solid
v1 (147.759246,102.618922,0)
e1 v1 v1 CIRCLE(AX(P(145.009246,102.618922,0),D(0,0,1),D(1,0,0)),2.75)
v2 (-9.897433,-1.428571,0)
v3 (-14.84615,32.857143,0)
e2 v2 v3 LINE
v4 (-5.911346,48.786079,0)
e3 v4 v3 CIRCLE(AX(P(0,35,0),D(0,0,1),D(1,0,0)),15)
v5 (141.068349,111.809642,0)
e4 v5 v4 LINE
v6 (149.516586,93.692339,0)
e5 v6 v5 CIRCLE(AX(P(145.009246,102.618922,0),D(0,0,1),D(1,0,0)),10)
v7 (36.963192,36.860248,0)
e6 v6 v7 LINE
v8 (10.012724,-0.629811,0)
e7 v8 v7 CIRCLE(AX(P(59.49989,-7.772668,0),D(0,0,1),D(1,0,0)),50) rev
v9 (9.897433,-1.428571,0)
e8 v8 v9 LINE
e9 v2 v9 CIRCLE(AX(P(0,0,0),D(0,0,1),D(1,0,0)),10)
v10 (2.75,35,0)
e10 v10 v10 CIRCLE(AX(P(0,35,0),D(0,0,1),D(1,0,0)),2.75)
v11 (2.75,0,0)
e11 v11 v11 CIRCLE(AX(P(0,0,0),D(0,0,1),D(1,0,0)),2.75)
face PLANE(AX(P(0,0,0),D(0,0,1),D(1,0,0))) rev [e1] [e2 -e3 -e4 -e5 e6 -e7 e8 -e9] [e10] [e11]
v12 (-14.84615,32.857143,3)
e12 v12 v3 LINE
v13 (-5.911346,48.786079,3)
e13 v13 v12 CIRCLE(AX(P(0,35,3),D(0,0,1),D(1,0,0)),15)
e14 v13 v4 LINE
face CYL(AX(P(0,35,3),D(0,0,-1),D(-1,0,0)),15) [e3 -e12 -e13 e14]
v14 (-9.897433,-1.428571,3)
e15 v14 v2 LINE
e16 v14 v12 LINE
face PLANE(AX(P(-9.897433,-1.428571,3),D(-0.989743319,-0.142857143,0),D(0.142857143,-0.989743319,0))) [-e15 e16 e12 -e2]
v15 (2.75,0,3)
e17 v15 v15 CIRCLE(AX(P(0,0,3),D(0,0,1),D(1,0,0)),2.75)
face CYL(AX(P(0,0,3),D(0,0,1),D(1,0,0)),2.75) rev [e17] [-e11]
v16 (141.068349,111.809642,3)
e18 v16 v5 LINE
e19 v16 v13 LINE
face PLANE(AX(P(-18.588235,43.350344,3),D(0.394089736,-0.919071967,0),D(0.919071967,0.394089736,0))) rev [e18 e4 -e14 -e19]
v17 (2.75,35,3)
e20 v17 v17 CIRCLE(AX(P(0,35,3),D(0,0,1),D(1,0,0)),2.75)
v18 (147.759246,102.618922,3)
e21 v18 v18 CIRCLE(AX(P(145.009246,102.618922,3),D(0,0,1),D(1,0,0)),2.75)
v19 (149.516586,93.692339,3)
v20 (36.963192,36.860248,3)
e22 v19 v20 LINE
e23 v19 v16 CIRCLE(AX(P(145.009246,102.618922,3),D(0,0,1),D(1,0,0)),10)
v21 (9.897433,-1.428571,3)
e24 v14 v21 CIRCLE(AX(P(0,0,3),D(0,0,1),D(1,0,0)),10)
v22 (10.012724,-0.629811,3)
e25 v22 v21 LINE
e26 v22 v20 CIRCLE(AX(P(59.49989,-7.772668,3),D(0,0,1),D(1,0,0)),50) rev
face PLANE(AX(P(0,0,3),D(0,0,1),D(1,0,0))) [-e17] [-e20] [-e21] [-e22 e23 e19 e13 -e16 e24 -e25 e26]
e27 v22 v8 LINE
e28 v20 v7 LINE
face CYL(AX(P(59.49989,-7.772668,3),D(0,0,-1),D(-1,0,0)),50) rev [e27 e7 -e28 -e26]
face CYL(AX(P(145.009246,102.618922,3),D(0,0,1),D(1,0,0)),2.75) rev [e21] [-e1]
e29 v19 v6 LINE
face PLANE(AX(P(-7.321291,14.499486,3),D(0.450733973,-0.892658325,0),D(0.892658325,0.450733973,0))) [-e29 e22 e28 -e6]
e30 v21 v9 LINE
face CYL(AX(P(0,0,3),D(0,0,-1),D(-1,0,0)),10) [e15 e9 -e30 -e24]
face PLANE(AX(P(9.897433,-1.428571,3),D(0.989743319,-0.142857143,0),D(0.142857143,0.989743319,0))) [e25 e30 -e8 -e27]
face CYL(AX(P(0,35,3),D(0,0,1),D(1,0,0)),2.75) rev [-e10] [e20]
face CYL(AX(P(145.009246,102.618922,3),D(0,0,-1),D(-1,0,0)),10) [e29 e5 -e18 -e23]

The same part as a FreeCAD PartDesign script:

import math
import FreeCAD as App
import Part
import Sketcher

V = App.Vector
Q = App.Units.Quantity

doc = App.newDocument("Part")
body = doc.addObject("PartDesign::Body", "Body")

# Sketch on XY plane
sketch1 = body.newObject("Sketcher::SketchObject", "Sketch")
sketch1.AttachmentSupport = (doc.getObject("XY_Plane"), [""])
sketch1.MapMode = "FlatFace"
sketch1.addGeometry([
    Part.LineSegment(V(9.897433, -1.428571, 0), V(10.012724, -0.629811, 0)),  # 0
    Part.ArcOfCircle(Part.Circle(V(59.49989, -7.772668, 0), V(0, 0, 1), 50), math.radians(116.790785), math.radians(171.786789)),  # 1
    Part.LineSegment(V(36.963192, 36.860248, 0), V(149.516586, 93.692339, 0)),  # 2
    Part.ArcOfCircle(Part.Circle(V(145.009246, 102.618922, 0), V(0, 0, 1), 10), math.radians(-63.209215), math.radians(113.209215)),  # 3
    Part.LineSegment(V(141.068349, 111.809642, 0), V(-5.911346, 48.786079, 0)),  # 4
    Part.ArcOfCircle(Part.Circle(V(0, 35, 0), V(0, 0, 1), 15), math.radians(113.209215), math.radians(188.213211)),  # 5
    Part.LineSegment(V(-14.84615, 32.857143, 0), V(-9.897433, -1.428571, 0)),  # 6
    Part.ArcOfCircle(Part.Circle(V(0, 0, 0), V(0, 0, 1), 10), math.radians(-171.786789), math.radians(-8.213211)),  # 7
], False)
sketch1.addConstraint([
    Sketcher.Constraint("Tangent", 0, 2, 1, 2),
    Sketcher.Constraint("Tangent", 1, 1, 2, 1),
    Sketcher.Constraint("Tangent", 2, 2, 3, 1),
    Sketcher.Constraint("Tangent", 3, 2, 4, 1),
    Sketcher.Constraint("Tangent", 4, 2, 5, 1),
    Sketcher.Constraint("Tangent", 5, 2, 6, 1),
    Sketcher.Constraint("Tangent", 6, 2, 7, 1),
    Sketcher.Constraint("Tangent", 7, 2, 0, 1),
    Sketcher.Constraint("Coincident", 7, 3, -1, 1),
    Sketcher.Constraint("Equal", 3, 7),
    Sketcher.Constraint("PointOnObject", 5, 3, -2),
    Sketcher.Constraint("Horizontal", 6, 2, 7, 2),
    Sketcher.Constraint("Radius", 1, Q("50 mm")),
    Sketcher.Constraint("Radius", 3, Q("10 mm")),
    Sketcher.Constraint("Radius", 5, Q("15 mm")),
    Sketcher.Constraint("DistanceY", -1, 1, 5, 3, Q("35 mm")),
    Sketcher.Constraint("DistanceX", 1, 1, 1, 3, Q("22.536699 mm")),
    Sketcher.Constraint("Distance", 0, Q("0.807038 mm")),
    Sketcher.Constraint("Distance", 2, Q("126.087878 mm")),
])
pad1 = body.newObject("PartDesign::Pad", "Pad")
pad1.Profile = sketch1
pad1.Length = 3

# Sketch on XY plane
sketch2 = body.newObject("Sketcher::SketchObject", "Sketch001")
sketch2.AttachmentSupport = (doc.getObject("XY_Plane"), [""])
sketch2.MapMode = "FlatFace"
sketch2.AttachmentOffset = App.Placement(V(0, 0, 3), App.Rotation())
sketch2.addGeometry([
    Part.Circle(V(145.009246, 102.618922, 0), V(0, 0, 1), 2.75),
    Part.Circle(V(0, 35, 0), V(0, 0, 1), 2.75),
    Part.Circle(V(0, 0, 0), V(0, 0, 1), 2.75),
], False)
sketch2.addConstraint([
    Sketcher.Constraint("Coincident", 2, 3, -1, 1),
    Sketcher.Constraint("Equal", 0, 1),
    Sketcher.Constraint("Equal", 1, 2),
    Sketcher.Constraint("PointOnObject", 1, 3, -2),
    Sketcher.Constraint("Diameter", 0, Q("5.5 mm")),
    Sketcher.Constraint("DistanceY", -1, 1, 1, 3, Q("35 mm")),
    Sketcher.Constraint("DistanceY", -1, 1, 0, 3, Q("102.618922 mm")),
    Sketcher.Constraint("DistanceX", -1, 1, 0, 3, Q("145.009246 mm")),
])
doc.recompute()
hole = body.newObject("PartDesign::Hole", "Hole")
hole.Profile = sketch2
hole.ThreadType = "None"
hole.Diameter = 5.5
hole.DepthType = "ThroughAll"

doc.recompute()
